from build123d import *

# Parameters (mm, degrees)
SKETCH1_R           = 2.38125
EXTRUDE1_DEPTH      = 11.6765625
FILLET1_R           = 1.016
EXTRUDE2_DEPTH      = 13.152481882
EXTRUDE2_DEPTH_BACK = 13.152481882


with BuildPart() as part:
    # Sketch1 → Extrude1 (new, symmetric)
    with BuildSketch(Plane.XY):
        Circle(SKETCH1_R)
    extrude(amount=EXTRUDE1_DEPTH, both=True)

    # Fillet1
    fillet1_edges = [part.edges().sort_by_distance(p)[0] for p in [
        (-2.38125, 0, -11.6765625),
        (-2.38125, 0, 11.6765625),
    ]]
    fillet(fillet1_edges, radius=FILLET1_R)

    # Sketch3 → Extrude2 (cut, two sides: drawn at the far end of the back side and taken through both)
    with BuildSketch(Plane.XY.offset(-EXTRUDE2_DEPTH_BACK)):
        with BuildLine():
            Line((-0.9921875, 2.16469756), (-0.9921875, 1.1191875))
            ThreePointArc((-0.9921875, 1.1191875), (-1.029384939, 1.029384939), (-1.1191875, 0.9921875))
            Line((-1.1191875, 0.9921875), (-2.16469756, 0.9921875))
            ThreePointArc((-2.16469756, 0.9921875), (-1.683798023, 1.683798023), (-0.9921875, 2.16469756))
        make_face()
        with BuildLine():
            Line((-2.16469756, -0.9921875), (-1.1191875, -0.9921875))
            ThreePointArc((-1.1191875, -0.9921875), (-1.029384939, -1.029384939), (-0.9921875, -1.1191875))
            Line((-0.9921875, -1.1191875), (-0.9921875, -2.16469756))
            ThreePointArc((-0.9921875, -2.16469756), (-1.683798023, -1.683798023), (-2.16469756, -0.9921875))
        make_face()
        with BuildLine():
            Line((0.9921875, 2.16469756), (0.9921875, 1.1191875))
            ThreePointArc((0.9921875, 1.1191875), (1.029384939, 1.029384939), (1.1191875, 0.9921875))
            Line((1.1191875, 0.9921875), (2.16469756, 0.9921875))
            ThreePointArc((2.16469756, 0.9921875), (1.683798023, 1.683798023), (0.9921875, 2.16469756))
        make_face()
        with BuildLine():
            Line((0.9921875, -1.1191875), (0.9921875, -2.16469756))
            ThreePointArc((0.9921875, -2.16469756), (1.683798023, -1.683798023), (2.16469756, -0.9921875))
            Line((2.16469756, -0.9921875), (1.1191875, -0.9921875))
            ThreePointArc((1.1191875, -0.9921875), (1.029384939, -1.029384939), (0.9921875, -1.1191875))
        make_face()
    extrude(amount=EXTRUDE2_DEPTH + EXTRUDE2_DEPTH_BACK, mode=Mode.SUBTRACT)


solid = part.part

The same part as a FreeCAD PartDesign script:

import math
import FreeCAD as App
import Part
import Sketcher
Q = App.Units.Quantity


def edges_at(feature, points):
    """Names of the edges that pass closest to the given points."""
    edges = feature.Shape.Edges
    near = lambda p: min(range(len(edges)), key=lambda i: edges[i].distToShape(Part.Vertex(*p))[0])
    return sorted({f"Edge{near(p) + 1}" for p in points})

doc = App.newDocument("Part")
body = doc.addObject("PartDesign::Body", "Body")

# Sketch on XY plane
sketch1 = body.newObject("Sketcher::SketchObject", "Sketch")
sketch1.AttachmentSupport = (doc.getObject("XY_Plane"), [""])
sketch1.MapMode = "FlatFace"
sketch1.addGeometry(Part.Circle(App.Vector(0, 0, 0), App.Vector(0, 0, 1), 2.38125), False)
sketch1.addConstraint(Sketcher.Constraint("Coincident", 0, 3, -1, 1))
sketch1.addConstraint(Sketcher.Constraint("Diameter", 0, Q("0.1875 in")))
pad1 = body.newObject("PartDesign::Pad", "Pad")
pad1.Profile = sketch1
pad1.Length = 23.353125
pad1.Midplane = True
doc.recompute()

fillet = body.newObject("PartDesign::Fillet", "Fillet")
fillet.Base = (pad1, edges_at(pad1, [(-2.381, 0, -11.677), (-2.381, 0, 11.677)]))
fillet.Radius = Q("0.04 in")

# Sketch on XY plane
sketch2 = body.newObject("Sketcher::SketchObject", "Sketch001")
sketch2.AttachmentSupport = (doc.getObject("XY_Plane"), [""])
sketch2.MapMode = "FlatFace"
sketch2.addGeometry(Part.LineSegment(App.Vector(-0.992188, 1.119188, 0), App.Vector(-0.992188, 2.164698, 0)), False)
sketch2.addGeometry(Part.ArcOfCircle(Part.Circle(App.Vector(0, 0, 0), App.Vector(0, 0, 1), 2.38125), math.radians(114.624318), math.radians(155.375682)), False)
sketch2.addGeometry(Part.LineSegment(App.Vector(-2.164698, 0.992188, 0), App.Vector(-1.119188, 0.992188, 0)), False)
sketch2.addGeometry(Part.ArcOfCircle(Part.Circle(App.Vector(-1.119188, 1.119188, 0), App.Vector(0, 0, 1), 0.127), math.radians(-90), math.radians(0)), False)
sketch2.addGeometry(Part.LineSegment(App.Vector(-1.119188, -0.992188, 0), App.Vector(-2.164698, -0.992188, 0)), False)
sketch2.addGeometry(Part.ArcOfCircle(Part.Circle(App.Vector(0, 0, 0), App.Vector(0, 0, 1), 2.38125), math.radians(-155.375682), math.radians(-114.624318)), False)
sketch2.addGeometry(Part.LineSegment(App.Vector(-0.992188, -2.164698, 0), App.Vector(-0.992188, -1.119188, 0)), False)
sketch2.addGeometry(Part.ArcOfCircle(Part.Circle(App.Vector(-1.119188, -1.119188, 0), App.Vector(0, 0, 1), 0.127), math.radians(0), math.radians(90)), False)
sketch2.addGeometry(Part.LineSegment(App.Vector(0.992188, 2.164698, 0), App.Vector(0.992188, 1.119188, 0)), False)
sketch2.addGeometry(Part.ArcOfCircle(Part.Circle(App.Vector(1.119188, 1.119188, 0), App.Vector(0, 0, 1), 0.127), math.radians(-180), math.radians(-90)), False)
sketch2.addGeometry(Part.LineSegment(App.Vector(1.119188, 0.992188, 0), App.Vector(2.164698, 0.992188, 0)), False)
sketch2.addGeometry(Part.ArcOfCircle(Part.Circle(App.Vector(0, 0, 0), App.Vector(0, 0, 1), 2.38125), math.radians(24.624318), math.radians(65.375682)), False)
sketch2.addGeometry(Part.LineSegment(App.Vector(0.992188, -1.119188, 0), App.Vector(0.992188, -2.164698, 0)), False)
sketch2.addGeometry(Part.ArcOfCircle(Part.Circle(App.Vector(0, 0, 0), App.Vector(0, 0, 1), 2.38125), math.radians(-65.375682), math.radians(-24.624318)), False)
sketch2.addGeometry(Part.LineSegment(App.Vector(2.164698, -0.992188, 0), App.Vector(1.119188, -0.992188, 0)), False)
sketch2.addGeometry(Part.ArcOfCircle(Part.Circle(App.Vector(1.119188, -1.119188, 0), App.Vector(0, 0, 1), 0.127), math.radians(90), math.radians(180)), False)
sketch2.addConstraint(Sketcher.Constraint("Coincident", 0, 2, 1, 1))
sketch2.addConstraint(Sketcher.Constraint("Coincident", 1, 2, 2, 1))
sketch2.addConstraint(Sketcher.Constraint("Tangent", 2, 2, 3, 1))
sketch2.addConstraint(Sketcher.Constraint("Tangent", 3, 2, 0, 1))
sketch2.addConstraint(Sketcher.Constraint("Coincident", 4, 2, 5, 1))
sketch2.addConstraint(Sketcher.Constraint("Coincident", 5, 2, 6, 1))
sketch2.addConstraint(Sketcher.Constraint("Tangent", 6, 2, 7, 1))
sketch2.addConstraint(Sketcher.Constraint("Tangent", 7, 2, 4, 1))
sketch2.addConstraint(Sketcher.Constraint("Tangent", 8, 2, 9, 1))
sketch2.addConstraint(Sketcher.Constraint("Tangent", 9, 2, 10, 1))
sketch2.addConstraint(Sketcher.Constraint("Coincident", 10, 2, 11, 1))
sketch2.addConstraint(Sketcher.Constraint("Coincident", 11, 2, 8, 1))
sketch2.addConstraint(Sketcher.Constraint("Coincident", 12, 2, 13, 1))
sketch2.addConstraint(Sketcher.Constraint("Coincident", 13, 2, 14, 1))
sketch2.addConstraint(Sketcher.Constraint("Tangent", 14, 2, 15, 1))
sketch2.addConstraint(Sketcher.Constraint("Tangent", 15, 2, 12, 1))
sketch2.addConstraint(Sketcher.Constraint("Vertical", 0))
sketch2.addConstraint(Sketcher.Constraint("Horizontal", 2))
sketch2.addConstraint(Sketcher.Constraint("Horizontal", 4))
sketch2.addConstraint(Sketcher.Constraint("Vertical", 6))
sketch2.addConstraint(Sketcher.Constraint("Vertical", 8))
sketch2.addConstraint(Sketcher.Constraint("Horizontal", 10))
sketch2.addConstraint(Sketcher.Constraint("Vertical", 12))
sketch2.addConstraint(Sketcher.Constraint("Horizontal", 14))
sketch2.addConstraint(Sketcher.Constraint("Coincident", 1, 3, -1, 1))
sketch2.addConstraint(Sketcher.Constraint("Coincident", 5, 3, -1, 1))
sketch2.addConstraint(Sketcher.Constraint("Coincident", 11, 3, -1, 1))
sketch2.addConstraint(Sketcher.Constraint("Coincident", 13, 3, -1, 1))
sketch2.addConstraint(Sketcher.Constraint("Equal", 1, 5))
sketch2.addConstraint(Sketcher.Constraint("Equal", 3, 7))
sketch2.addConstraint(Sketcher.Constraint("Equal", 7, 9))
sketch2.addConstraint(Sketcher.Constraint("Equal", 5, 11))
sketch2.addConstraint(Sketcher.Constraint("Equal", 11, 13))
sketch2.addConstraint(Sketcher.Constraint("Equal", 9, 15))
sketch2.addConstraint(Sketcher.Constraint("Symmetric", 7, 3, 9, 3, -1, 1))
sketch2.addConstraint(Sketcher.Constraint("Symmetric", 3, 3, 15, 3, -1, 1))
sketch2.addConstraint(Sketcher.Constraint("Symmetric", 3, 3, 9, 3, -2))
sketch2.addConstraint(Sketcher.Constraint("Equal", 14, 0))
sketch2.addConstraint(Sketcher.Constraint("Radius", 1, Q("0.09375 in")))
sketch2.addConstraint(Sketcher.Constraint("Radius", 3, Q("0.005 in")))
sketch2.addConstraint(Sketcher.Constraint("DistanceY", 4, 2, 1, 2, Q("0.078125 in")))
pocket1 = body.newObject("PartDesign::Pocket", "Pocket")
pocket1.Profile = sketch2
pocket1.Type = "ThroughAll"
pocket1.Midplane = True

doc.recompute()
